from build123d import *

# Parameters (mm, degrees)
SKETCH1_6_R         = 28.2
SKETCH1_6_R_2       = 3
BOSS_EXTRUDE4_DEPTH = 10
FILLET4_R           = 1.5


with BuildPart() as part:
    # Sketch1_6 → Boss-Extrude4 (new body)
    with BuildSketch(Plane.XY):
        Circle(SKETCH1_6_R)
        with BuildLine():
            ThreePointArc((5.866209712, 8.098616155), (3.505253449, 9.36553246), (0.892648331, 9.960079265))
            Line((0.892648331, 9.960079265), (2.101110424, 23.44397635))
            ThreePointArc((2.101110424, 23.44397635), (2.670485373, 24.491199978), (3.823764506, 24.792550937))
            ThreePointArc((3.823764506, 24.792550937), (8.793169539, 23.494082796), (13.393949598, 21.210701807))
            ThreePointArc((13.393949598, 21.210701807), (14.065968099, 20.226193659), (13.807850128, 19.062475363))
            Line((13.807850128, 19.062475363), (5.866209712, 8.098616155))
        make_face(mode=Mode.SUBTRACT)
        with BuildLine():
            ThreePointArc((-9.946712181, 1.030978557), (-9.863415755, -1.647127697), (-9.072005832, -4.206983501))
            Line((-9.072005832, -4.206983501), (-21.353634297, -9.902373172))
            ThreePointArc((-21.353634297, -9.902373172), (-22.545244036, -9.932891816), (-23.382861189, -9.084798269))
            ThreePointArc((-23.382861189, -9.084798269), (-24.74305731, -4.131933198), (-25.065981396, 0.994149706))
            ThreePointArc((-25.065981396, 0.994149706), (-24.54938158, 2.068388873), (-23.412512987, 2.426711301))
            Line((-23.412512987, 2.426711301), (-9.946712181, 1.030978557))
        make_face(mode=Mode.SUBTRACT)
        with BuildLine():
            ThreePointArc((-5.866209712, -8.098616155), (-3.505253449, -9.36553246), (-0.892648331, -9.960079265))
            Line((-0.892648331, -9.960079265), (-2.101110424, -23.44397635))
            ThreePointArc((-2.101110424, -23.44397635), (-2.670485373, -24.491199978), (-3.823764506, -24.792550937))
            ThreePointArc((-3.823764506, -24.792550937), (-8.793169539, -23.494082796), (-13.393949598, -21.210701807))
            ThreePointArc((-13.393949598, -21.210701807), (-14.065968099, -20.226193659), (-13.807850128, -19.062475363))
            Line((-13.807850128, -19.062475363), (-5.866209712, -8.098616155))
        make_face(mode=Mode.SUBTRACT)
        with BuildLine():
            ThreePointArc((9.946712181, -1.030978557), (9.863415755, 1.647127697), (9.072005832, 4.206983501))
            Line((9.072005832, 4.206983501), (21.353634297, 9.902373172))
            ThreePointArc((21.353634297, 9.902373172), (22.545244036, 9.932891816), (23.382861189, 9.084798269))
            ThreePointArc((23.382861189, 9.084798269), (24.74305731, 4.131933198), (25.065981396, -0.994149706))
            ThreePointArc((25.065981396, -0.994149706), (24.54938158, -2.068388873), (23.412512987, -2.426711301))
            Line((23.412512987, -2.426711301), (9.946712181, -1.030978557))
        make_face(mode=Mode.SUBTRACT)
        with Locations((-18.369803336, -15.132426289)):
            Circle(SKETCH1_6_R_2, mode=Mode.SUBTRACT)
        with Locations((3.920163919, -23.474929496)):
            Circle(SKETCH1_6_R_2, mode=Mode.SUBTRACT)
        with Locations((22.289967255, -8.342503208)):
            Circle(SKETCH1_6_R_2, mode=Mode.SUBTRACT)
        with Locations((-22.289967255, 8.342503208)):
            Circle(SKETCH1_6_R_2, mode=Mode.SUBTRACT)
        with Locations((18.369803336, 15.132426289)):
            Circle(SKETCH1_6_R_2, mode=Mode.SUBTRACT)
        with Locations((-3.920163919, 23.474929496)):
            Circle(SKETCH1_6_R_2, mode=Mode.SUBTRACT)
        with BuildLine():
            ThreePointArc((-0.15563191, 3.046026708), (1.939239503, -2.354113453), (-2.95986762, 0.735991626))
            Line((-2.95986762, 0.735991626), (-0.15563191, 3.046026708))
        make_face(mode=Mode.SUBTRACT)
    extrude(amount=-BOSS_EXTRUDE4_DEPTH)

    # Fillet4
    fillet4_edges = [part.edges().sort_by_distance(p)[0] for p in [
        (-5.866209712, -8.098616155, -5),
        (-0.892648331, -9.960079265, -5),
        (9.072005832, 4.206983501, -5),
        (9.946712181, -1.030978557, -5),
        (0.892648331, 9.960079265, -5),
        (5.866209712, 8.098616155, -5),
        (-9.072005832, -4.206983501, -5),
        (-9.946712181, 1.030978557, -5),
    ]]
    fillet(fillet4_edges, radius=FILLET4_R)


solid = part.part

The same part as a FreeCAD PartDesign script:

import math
import FreeCAD as App
import Part
import Sketcher


def edges_at(feature, points):
    """Names of the edges that pass closest to the given points."""
    edges = feature.Shape.Edges
    near = lambda p: min(range(len(edges)), key=lambda i: edges[i].distToShape(Part.Vertex(*p))[0])
    return sorted({f"Edge{near(p) + 1}" for p in points})

doc = App.newDocument("Part")
body = doc.addObject("PartDesign::Body", "Body")

# Sketch on XY plane
sketch1 = body.newObject("Sketcher::SketchObject", "Sketch")
sketch1.AttachmentSupport = (doc.getObject("XY_Plane"), [""])
sketch1.MapMode = "FlatFace"
sketch1.addGeometry(Part.Circle(App.Vector(0, 0, 0), App.Vector(0, 0, 1), 28.2), False)
sketch1.addGeometry(Part.Circle(App.Vector(-18.369803, -15.132426, 0), App.Vector(0, 0, 1), 3), False)
sketch1.addGeometry(Part.LineSegment(App.Vector(-13.80785, -19.062475, 0), App.Vector(-5.86621, -8.098616, 0)), False)
sketch1.addGeometry(Part.ArcOfCircle(Part.Circle(App.Vector(0, 0, 0), App.Vector(0, 0, 1), 10), math.radians(-125.917587), math.radians(-95.121315)), False)
sketch1.addGeometry(Part.LineSegment(App.Vector(-0.892648, -9.960079, 0), App.Vector(-2.10111, -23.443976, 0)), False)
sketch1.addGeometry(Part.ArcOfCircle(Part.Circle(App.Vector(-3.595122, -23.310079, 0), App.Vector(0, 0, 1), 1.5), math.radians(-98.767666), math.radians(-5.121315)), False)
sketch1.addGeometry(Part.ArcOfCircle(Part.Circle(App.Vector(0, 0, 0), App.Vector(0, 0, 1), 25.085688), math.radians(-122.271235), math.radians(-98.767666)), False)
sketch1.addGeometry(Part.ArcOfCircle(Part.Circle(App.Vector(-12.593058, -19.942407, 0), App.Vector(0, 0, 1), 1.5), math.radians(144.082413), math.radians(237.728765)), False)
sketch1.addGeometry(Part.LineSegment(App.Vector(-23.412513, 2.426711, 0), App.Vector(-9.946712, 1.030979, 0)), False)
sketch1.addGeometry(Part.ArcOfCircle(Part.Circle(App.Vector(0, 0, 0), App.Vector(0, 0, 1), 10), math.radians(174.082413), math.radians(204.878685)), False)
sketch1.addGeometry(Part.LineSegment(App.Vector(-9.072006, -4.206984, 0), App.Vector(-21.353634, -9.902373, 0)), False)
sketch1.addGeometry(Part.ArcOfCircle(Part.Circle(App.Vector(-21.984682, -8.541572, 0), App.Vector(0, 0, 1), 1.5), math.radians(-158.767666), math.radians(-65.121315)), False)
sketch1.addGeometry(Part.ArcOfCircle(Part.Circle(App.Vector(0, 0, 0), App.Vector(0, 0, 1), 25.085688), math.radians(177.728765), math.radians(201.232334)), False)
sketch1.addGeometry(Part.ArcOfCircle(Part.Circle(App.Vector(-23.56716, 0.934704, 0), App.Vector(0, 0, 1), 1.5), math.radians(84.082413), math.radians(177.728765)), False)
sketch1.addGeometry(Part.LineSegment(App.Vector(-2.959868, 0.735992, 0), App.Vector(-0.155632, 3.046027, 0)), False)
sketch1.addGeometry(Part.ArcOfCircle(Part.Circle(App.Vector(0, 0, 0), App.Vector(0, 0, 1), 3.05), math.radians(166.036204), math.radians(452.924894)), False)
sketch1.addGeometry(Part.Circle(App.Vector(3.920164, -23.474929, 0), App.Vector(0, 0, 1), 3), False)
sketch1.addGeometry(Part.Circle(App.Vector(22.289967, -8.342503, 0), App.Vector(0, 0, 1), 3), False)
sketch1.addGeometry(Part.Circle(App.Vector(-22.289967, 8.342503, 0), App.Vector(0, 0, 1), 3), False)
sketch1.addGeometry(Part.Circle(App.Vector(-3.920164, 23.474929, 0), App.Vector(0, 0, 1), 3), False)
sketch1.addGeometry(Part.LineSegment(App.Vector(23.412513, -2.426711, 0), App.Vector(9.946712, -1.030979, 0)), False)
sketch1.addGeometry(Part.ArcOfCircle(Part.Circle(App.Vector(0, 0, 0), App.Vector(0, 0, 1), 10), math.radians(-5.917587), math.radians(24.878685)), False)
sketch1.addGeometry(Part.LineSegment(App.Vector(9.072006, 4.206984, 0), App.Vector(21.353634, 9.902373, 0)), False)
sketch1.addGeometry(Part.ArcOfCircle(Part.Circle(App.Vector(21.984682, 8.541572, 0), App.Vector(0, 0, 1), 1.5), math.radians(21.232334), math.radians(114.878685)), False)
sketch1.addGeometry(Part.ArcOfCircle(Part.Circle(App.Vector(0, 0, 0), App.Vector(0, 0, 1), 25.085688), math.radians(-2.271235), math.radians(21.232334)), False)
sketch1.addGeometry(Part.ArcOfCircle(Part.Circle(App.Vector(23.56716, -0.934704, 0), App.Vector(0, 0, 1), 1.5), math.radians(-95.917587), math.radians(-2.271235)), False)
sketch1.addGeometry(Part.LineSegment(App.Vector(13.80785, 19.062475, 0), App.Vector(5.86621, 8.098616, 0)), False)
sketch1.addGeometry(Part.ArcOfCircle(Part.Circle(App.Vector(0, 0, 0), App.Vector(0, 0, 1), 10), math.radians(54.082413), math.radians(84.878685)), False)
sketch1.addGeometry(Part.LineSegment(App.Vector(0.892648, 9.960079, 0), App.Vector(2.10111, 23.443976, 0)), False)
sketch1.addGeometry(Part.ArcOfCircle(Part.Circle(App.Vector(3.595122, 23.310079, 0), App.Vector(0, 0, 1), 1.5), math.radians(81.232334), math.radians(174.878685)), False)
sketch1.addGeometry(Part.ArcOfCircle(Part.Circle(App.Vector(0, 0, 0), App.Vector(0, 0, 1), 25.085688), math.radians(57.728765), math.radians(81.232334)), False)
sketch1.addGeometry(Part.ArcOfCircle(Part.Circle(App.Vector(12.593058, 19.942407, 0), App.Vector(0, 0, 1), 1.5), math.radians(-35.917587), math.radians(57.728765)), False)
sketch1.addGeometry(Part.Circle(App.Vector(18.369803, 15.132426, 0), App.Vector(0, 0, 1), 3), False)
sketch1.addConstraint(Sketcher.Constraint("Coincident", 2, 2, 3, 1))
sketch1.addConstraint(Sketcher.Constraint("Coincident", 3, 2, 4, 1))
sketch1.addConstraint(Sketcher.Constraint("Tangent", 4, 2, 5, 2))
sketch1.addConstraint(Sketcher.Constraint("Tangent", 5, 1, 6, 2))
sketch1.addConstraint(Sketcher.Constraint("Tangent", 6, 1, 7, 2))
sketch1.addConstraint(Sketcher.Constraint("Tangent", 7, 1, 2, 1))
sketch1.addConstraint(Sketcher.Constraint("Coincident", 8, 2, 9, 1))
sketch1.addConstraint(Sketcher.Constraint("Coincident", 9, 2, 10, 1))
sketch1.addConstraint(Sketcher.Constraint("Tangent", 10, 2, 11, 2))
sketch1.addConstraint(Sketcher.Constraint("Tangent", 11, 1, 12, 2))
sketch1.addConstraint(Sketcher.Constraint("Tangent", 12, 1, 13, 2))
sketch1.addConstraint(Sketcher.Constraint("Tangent", 13, 1, 8, 1))
sketch1.addConstraint(Sketcher.Constraint("Coincident", 14, 1, 15, 1))
sketch1.addConstraint(Sketcher.Constraint("Coincident", 15, 2, 14, 2))
sketch1.addConstraint(Sketcher.Constraint("Coincident", 20, 2, 21, 1))
sketch1.addConstraint(Sketcher.Constraint("Coincident", 21, 2, 22, 1))
sketch1.addConstraint(Sketcher.Constraint("Tangent", 22, 2, 23, 2))
sketch1.addConstraint(Sketcher.Constraint("Tangent", 23, 1, 24, 2))
sketch1.addConstraint(Sketcher.Constraint("Tangent", 24, 1, 25, 2))
sketch1.addConstraint(Sketcher.Constraint("Tangent", 25, 1, 20, 1))
sketch1.addConstraint(Sketcher.Constraint("Coincident", 26, 2, 27, 1))
sketch1.addConstraint(Sketcher.Constraint("Coincident", 27, 2, 28, 1))
sketch1.addConstraint(Sketcher.Constraint("Tangent", 28, 2, 29, 2))
sketch1.addConstraint(Sketcher.Constraint("Tangent", 29, 1, 30, 2))
sketch1.addConstraint(Sketcher.Constraint("Tangent", 30, 1, 31, 2))
sketch1.addConstraint(Sketcher.Constraint("Tangent", 31, 1, 26, 1))
sketch1.addConstraint(Sketcher.Constraint("Coincident", 0, 3, -1, 1))
sketch1.addConstraint(Sketcher.Constraint("Coincident", 3, 3, -1, 1))
sketch1.addConstraint(Sketcher.Constraint("Coincident", 6, 3, -1, 1))
sketch1.addConstraint(Sketcher.Constraint("Coincident", 9, 3, -1, 1))
sketch1.addConstraint(Sketcher.Constraint("Coincident", 12, 3, -1, 1))
sketch1.addConstraint(Sketcher.Constraint("Coincident", 15, 3, -1, 1))
sketch1.addConstraint(Sketcher.Constraint("Coincident", 21, 3, -1, 1))
sketch1.addConstraint(Sketcher.Constraint("Coincident", 24, 3, -1, 1))
sketch1.addConstraint(Sketcher.Constraint("Coincident", 27, 3, -1, 1))
sketch1.addConstraint(Sketcher.Constraint("Coincident", 30, 3, -1, 1))
sketch1.addConstraint(Sketcher.Constraint("Equal", 5, 7))
sketch1.addConstraint(Sketcher.Constraint("Equal", 3, 9))
sketch1.addConstraint(Sketcher.Constraint("Equal", 7, 11))
sketch1.addConstraint(Sketcher.Constraint("Equal", 6, 12))
sketch1.addConstraint(Sketcher.Constraint("Equal", 11, 13))
sketch1.addConstraint(Sketcher.Constraint("Equal", 1, 16))
sketch1.addConstraint(Sketcher.Constraint("Equal", 16, 17))
sketch1.addConstraint(Sketcher.Constraint("Equal", 17, 18))
sketch1.addConstraint(Sketcher.Constraint("Equal", 18, 19))
sketch1.addConstraint(Sketcher.Constraint("Equal", 9, 21))
sketch1.addConstraint(Sketcher.Constraint("Equal", 13, 23))
sketch1.addConstraint(Sketcher.Constraint("Equal", 12, 24))
sketch1.addConstraint(Sketcher.Constraint("Equal", 23, 25))
sketch1.addConstraint(Sketcher.Constraint("Equal", 21, 27))
sketch1.addConstraint(Sketcher.Constraint("Equal", 25, 29))
sketch1.addConstraint(Sketcher.Constraint("Equal", 24, 30))
sketch1.addConstraint(Sketcher.Constraint("Equal", 29, 31))
sketch1.addConstraint(Sketcher.Constraint("Equal", 19, 32))
sketch1.addConstraint(Sketcher.Constraint("Symmetric", 17, 3, 18, 3, -1, 1))
sketch1.addConstraint(Sketcher.Constraint("Symmetric", 16, 3, 19, 3, -1, 1))
sketch1.addConstraint(Sketcher.Constraint("Symmetric", 1, 3, 32, 3, -1, 1))
sketch1.addConstraint(Sketcher.Constraint("Symmetric", 10, 2, 22, 2, -1, 1))
sketch1.addConstraint(Sketcher.Constraint("Symmetric", 13, 1, 25, 1, -1, 1))
sketch1.addConstraint(Sketcher.Constraint("Symmetric", 4, 2, 28, 2, -1, 1))
sketch1.addConstraint(Sketcher.Constraint("Symmetric", 7, 1, 31, 1, -1, 1))
sketch1.addConstraint(Sketcher.Constraint("Equal", 2, 4))
sketch1.addConstraint(Sketcher.Constraint("Equal", 4, 8))
sketch1.addConstraint(Sketcher.Constraint("Equal", 8, 10))
sketch1.addConstraint(Sketcher.Constraint("Diameter", 1, 6.0))
sketch1.addConstraint(Sketcher.Constraint("Radius", 3, 10.0))
sketch1.addConstraint(Sketcher.Constraint("Diameter", 0, 56.4))
sketch1.addConstraint(Sketcher.Constraint("Radius", 5, 1.5))
sketch1.addConstraint(Sketcher.Constraint("Radius", 15, 3.05))
sketch1.addConstraint(Sketcher.Constraint("Radius", 6, 25.085688))
sketch1.addConstraint(Sketcher.Constraint("DistanceY", 6, 1, -1, 1, 21.210702))
sketch1.addConstraint(Sketcher.Constraint("DistanceY", 11, 1, -1, 1, 9.084798))
sketch1.addConstraint(Sketcher.Constraint("DistanceY", 13, 3, 18, 3, 7.407799))
sketch1.addConstraint(Sketcher.Constraint("DistanceX", 2, 2, 4, 2, 3.765099))
sketch1.addConstraint(Sketcher.Constraint("DistanceY", 10, 2, 11, 3, 1.360801))
sketch1.addConstraint(Sketcher.Constraint("DistanceX", 13, 3, 11, 1, 0.184299))
sketch1.addConstraint(Sketcher.Constraint("Distance", 14, 3.63318))
sketch1.addConstraint(Sketcher.Constraint("DistanceY", 16, 3, -1, 1, 23.474929))
sketch1.addConstraint(Sketcher.Constraint("DistanceY", -1, 1, 14, 1, 0.735992))
sketch1.addConstraint(Sketcher.Constraint("DistanceX", 1, 3, 5, 3, 14.774681))
sketch1.addConstraint(Sketcher.Constraint("DistanceY", 7, 3, 1, 3, 4.809981))
sketch1.addConstraint(Sketcher.Constraint("DistanceX", 7, 3, 16, 3, 16.513222))
sketch1.addConstraint(Sketcher.Constraint("DistanceX", -1, 1, 17, 3, 22.289967))
pad1 = body.newObject("PartDesign::Pad", "Pad")
pad1.Profile = sketch1
pad1.Length = 10
pad1.Reversed = True
doc.recompute()

fillet = body.newObject("PartDesign::Fillet", "Fillet")
fillet.Base = (pad1, edges_at(pad1, [
    (-5.866, -8.099, -5),
    (-0.893, -9.96, -5),
    (9.072, 4.207, -5),
    (9.947, -1.031, -5),
    (0.893, 9.96, -5),
    (5.866, 8.099, -5),
    (-9.072, -4.207, -5),
    (-9.947, 1.031, -5),
]))
fillet.Radius = 1.5

doc.recompute()
